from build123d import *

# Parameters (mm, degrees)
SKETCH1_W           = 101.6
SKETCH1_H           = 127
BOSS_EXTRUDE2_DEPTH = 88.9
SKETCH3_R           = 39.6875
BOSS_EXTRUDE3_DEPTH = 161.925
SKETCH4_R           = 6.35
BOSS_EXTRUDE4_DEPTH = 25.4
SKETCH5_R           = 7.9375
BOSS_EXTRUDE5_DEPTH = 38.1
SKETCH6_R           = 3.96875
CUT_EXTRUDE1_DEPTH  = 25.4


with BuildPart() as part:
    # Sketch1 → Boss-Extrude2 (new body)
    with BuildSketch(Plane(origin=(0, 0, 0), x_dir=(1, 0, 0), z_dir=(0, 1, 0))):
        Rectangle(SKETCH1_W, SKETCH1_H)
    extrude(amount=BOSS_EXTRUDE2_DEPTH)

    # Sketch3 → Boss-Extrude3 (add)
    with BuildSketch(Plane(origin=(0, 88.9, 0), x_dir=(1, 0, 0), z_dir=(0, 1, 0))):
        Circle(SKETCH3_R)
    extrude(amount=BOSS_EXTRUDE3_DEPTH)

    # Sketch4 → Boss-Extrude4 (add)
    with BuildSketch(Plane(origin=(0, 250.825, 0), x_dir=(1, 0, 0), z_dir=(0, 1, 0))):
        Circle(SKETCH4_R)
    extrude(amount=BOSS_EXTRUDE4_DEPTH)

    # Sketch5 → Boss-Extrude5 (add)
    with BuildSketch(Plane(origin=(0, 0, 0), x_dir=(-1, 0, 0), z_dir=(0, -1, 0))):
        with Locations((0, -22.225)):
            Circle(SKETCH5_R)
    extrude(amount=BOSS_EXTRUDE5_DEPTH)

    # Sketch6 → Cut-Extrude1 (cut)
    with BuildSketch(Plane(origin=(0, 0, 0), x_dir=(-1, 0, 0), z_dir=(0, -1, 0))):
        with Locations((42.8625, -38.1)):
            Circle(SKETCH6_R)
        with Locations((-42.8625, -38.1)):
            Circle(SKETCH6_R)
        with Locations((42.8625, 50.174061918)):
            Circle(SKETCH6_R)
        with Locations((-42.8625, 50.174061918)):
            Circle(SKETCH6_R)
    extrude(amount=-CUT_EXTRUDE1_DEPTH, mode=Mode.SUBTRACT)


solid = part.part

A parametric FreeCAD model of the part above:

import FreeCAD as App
import Part
import Sketcher
from FreeCAD import Vector
Q = App.Units.Quantity


def add_polygon(sketch, points):
    """Adds a closed chain of lines whose ends are joined by coincident constraints."""
    first, n = sketch.GeometryCount, len(points)
    for a, b in zip(points, points[1:] + points[:1]):
        sketch.addGeometry(Part.LineSegment(App.Vector(*a, 0), App.Vector(*b, 0)), False)
    for i in range(n):
        sketch.addConstraint(Sketcher.Constraint("Coincident", first + i, 2, first + (i + 1) % n, 1))

doc = App.newDocument("Part")
body = doc.addObject("PartDesign::Body", "Body")

# Sketch on XZ plane
sketch1 = body.newObject("Sketcher::SketchObject", "Sketch")
sketch1.AttachmentSupport = (doc.getObject("XZ_Plane"), [""])
sketch1.MapMode = "FlatFace"
add_polygon(sketch1, [(-51, -64), (-51, 64), (51, 64), (51, -64)])  # lines 0-3
sketch1.addConstraint([
    Sketcher.Constraint("Vertical", 0),
    Sketcher.Constraint("Horizontal", 1),
    Sketcher.Constraint("Vertical", 2),
    Sketcher.Constraint("Horizontal", 3),
    Sketcher.Constraint("Symmetric", 0, 2, 2, 2, -1, 1),
    Sketcher.Constraint("DistanceX", 1, 1, 1, 2, Q("4 in")),
    Sketcher.Constraint("DistanceY", 0, 1, 0, 2, Q("5 in")),
])
pad1 = body.newObject("PartDesign::Pad", "Pad")
pad1.Profile = sketch1
pad1.Length = Q("3.5 in")
pad1.Reversed = True

# Sketch on XZ plane
sketch2 = body.newObject("Sketcher::SketchObject", "Sketch001")
sketch2.AttachmentSupport = (doc.getObject("XZ_Plane"), [""])
sketch2.MapMode = "FlatFace"
sketch2.AttachmentOffset = App.Placement(Vector(0, 0, -3.5 * 25.4), App.Rotation())
sketch2.addGeometry(Part.Circle(Vector(0, 0, 0), Vector(0, 0, 1), 40), False)
sketch2.addConstraint([
    Sketcher.Constraint("Coincident", 0, 3, -1, 1),
    Sketcher.Constraint("Diameter", 0, Q("3.125 in")),
])
pad2 = body.newObject("PartDesign::Pad", "Pad001")
pad2.Profile = sketch2
pad2.Length = Q("6.375 in")
pad2.Reversed = True

# Sketch on XZ plane
sketch3 = body.newObject("Sketcher::SketchObject", "Sketch002")
sketch3.AttachmentSupport = (doc.getObject("XZ_Plane"), [""])
sketch3.MapMode = "FlatFace"
sketch3.AttachmentOffset = App.Placement(Vector(0, 0, -9.875 * 25.4), App.Rotation())
sketch3.addGeometry(Part.Circle(Vector(0, 0, 0), Vector(0, 0, 1), 6), False)
sketch3.addConstraint([
    Sketcher.Constraint("Coincident", 0, 3, -1, 1),
    Sketcher.Constraint("Diameter", 0, Q("0.5 in")),
])
pad3 = body.newObject("PartDesign::Pad", "Pad002")
pad3.Profile = sketch3
pad3.Length = Q("1 in")
pad3.Reversed = True

# Sketch on XZ plane
sketch4 = body.newObject("Sketcher::SketchObject", "Sketch003")
sketch4.AttachmentSupport = (doc.getObject("XZ_Plane"), [""])
sketch4.MapMode = "FlatFace"
sketch4.addGeometry(Part.Circle(Vector(0, 22, 0), Vector(0, 0, 1), 8), False)
sketch4.addConstraint([
    Sketcher.Constraint("PointOnObject", 0, 3, -2),
    Sketcher.Constraint("Diameter", 0, Q("0.625 in")),
    Sketcher.Constraint("DistanceY", -1, 1, 0, 3, Q("0.875 in")),
])
pad4 = body.newObject("PartDesign::Pad", "Pad003")
pad4.Profile = sketch4
pad4.Length = Q("1.5 in")

# Sketch on XZ plane
sketch5 = body.newObject("Sketcher::SketchObject", "Sketch004")
sketch5.AttachmentSupport = (doc.getObject("XZ_Plane"), [""])
sketch5.MapMode = "FlatFace"
sketch5.addGeometry([
    Part.Circle(Vector(-42.9, 38.1, 0), Vector(0, 0, 1), 4),
    Part.Circle(Vector(42.9, 38.1, 0), Vector(0, 0, 1), 4),
    Part.Circle(Vector(-42.9, -50.2, 0), Vector(0, 0, 1), 4),
    Part.Circle(Vector(42.9, -50.2, 0), Vector(0, 0, 1), 4),
], False)
sketch5.addConstraint([
    Sketcher.Constraint("Equal", 0, 1),
    Sketcher.Constraint("Equal", 1, 2),
    Sketcher.Constraint("Equal", 2, 3),
    Sketcher.Constraint("Symmetric", 0, 3, 1, 3, -2),
    Sketcher.Constraint("Symmetric", 2, 3, 3, 3, -2),
    Sketcher.Constraint("Vertical", 0, 3, 2, 3),
    Sketcher.Constraint("Diameter", 0, Q("0.3125 in")),
    Sketcher.Constraint("DistanceY", -1, 1, 0, 3, Q("1.5 in")),
    Sketcher.Constraint("DistanceX", 0, 3, -1, 1, Q("1.6875 in")),
    Sketcher.Constraint("DistanceY", 2, 3, -1, 1, 50.174062),
])
pocket1 = body.newObject("PartDesign::Pocket", "Pocket")
pocket1.Profile = sketch5
pocket1.Length = Q("1 in")

doc.recompute()
